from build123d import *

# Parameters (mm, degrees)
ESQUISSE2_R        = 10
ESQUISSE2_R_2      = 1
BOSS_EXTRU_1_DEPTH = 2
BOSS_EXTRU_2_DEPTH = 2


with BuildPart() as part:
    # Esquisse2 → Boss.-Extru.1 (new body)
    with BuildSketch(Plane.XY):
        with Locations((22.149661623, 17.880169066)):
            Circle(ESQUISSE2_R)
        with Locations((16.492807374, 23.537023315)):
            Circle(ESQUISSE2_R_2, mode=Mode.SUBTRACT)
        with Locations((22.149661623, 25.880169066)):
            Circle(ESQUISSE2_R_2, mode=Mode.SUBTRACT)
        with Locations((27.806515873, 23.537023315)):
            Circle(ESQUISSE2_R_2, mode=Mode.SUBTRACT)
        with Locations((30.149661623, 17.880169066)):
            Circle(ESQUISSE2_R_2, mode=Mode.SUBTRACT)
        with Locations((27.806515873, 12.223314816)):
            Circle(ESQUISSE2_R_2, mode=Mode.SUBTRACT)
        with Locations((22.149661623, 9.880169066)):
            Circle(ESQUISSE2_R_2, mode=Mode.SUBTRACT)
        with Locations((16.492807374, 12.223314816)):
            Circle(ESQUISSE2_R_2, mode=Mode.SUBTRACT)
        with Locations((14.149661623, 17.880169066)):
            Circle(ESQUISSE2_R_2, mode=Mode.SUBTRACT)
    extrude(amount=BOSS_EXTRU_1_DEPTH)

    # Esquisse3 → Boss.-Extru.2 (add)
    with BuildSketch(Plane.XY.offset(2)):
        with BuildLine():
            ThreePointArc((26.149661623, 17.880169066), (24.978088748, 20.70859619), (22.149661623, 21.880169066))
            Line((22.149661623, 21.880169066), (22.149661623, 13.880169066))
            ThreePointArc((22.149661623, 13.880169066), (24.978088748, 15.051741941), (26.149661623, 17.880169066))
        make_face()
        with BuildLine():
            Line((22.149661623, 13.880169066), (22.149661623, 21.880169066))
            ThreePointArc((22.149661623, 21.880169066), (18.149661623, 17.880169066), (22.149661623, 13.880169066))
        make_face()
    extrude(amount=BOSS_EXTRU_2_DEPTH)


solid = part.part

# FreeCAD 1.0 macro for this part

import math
import FreeCAD as App
import Part
import Sketcher

V = App.Vector
Q = App.Units.Quantity

doc = App.newDocument("Part")
params = doc.addObject("Spreadsheet::Sheet", "Params")
for row, (alias, value) in enumerate([
    ("sketch1_diameter", "20 mm"),
    ("sketch1_diameter2", "2 mm"),
    ("pad1_length", "2 mm"),
    ("sketch2_radius", "4 mm"),
    ("pad2_length", "2 mm"),
], start=1):
    params.set(f"A{row}", alias)
    params.set(f"B{row}", "=" + value)
    params.setAlias(f"B{row}", alias)

body = doc.addObject("PartDesign::Body", "Body")

# Sketch on XY plane
sketch1 = body.newObject("Sketcher::SketchObject", "Sketch")
sketch1.AttachmentSupport = (doc.getObject("XY_Plane"), [""])
sketch1.MapMode = "FlatFace"
sketch1.addGeometry([
    Part.Circle(V(22.1, 17.9, 0), V(0, 0, 1), 10),  # 0
    Part.Circle(V(16.5, 12.2, 0), V(0, 0, 1), 1),  # 1
    Part.Circle(V(22.1, 9.9, 0), V(0, 0, 1), 1),  # 2
    Part.Circle(V(27.8, 12.2, 0), V(0, 0, 1), 1),  # 3
    Part.Circle(V(14.1, 17.9, 0), V(0, 0, 1), 1),  # 4
    Part.Circle(V(16.5, 23.5, 0), V(0, 0, 1), 1),  # 5
    Part.Circle(V(30.1, 17.9, 0), V(0, 0, 1), 1),  # 6
    Part.Circle(V(22.1, 25.9, 0), V(0, 0, 1), 1),  # 7
    Part.Circle(V(27.8, 23.5, 0), V(0, 0, 1), 1),  # 8
], False)
sketch1.addConstraint([
    Sketcher.Constraint("Equal", 1, 2),
    Sketcher.Constraint("Equal", 2, 3),
    Sketcher.Constraint("Equal", 3, 4),
    Sketcher.Constraint("Equal", 4, 5),
    Sketcher.Constraint("Equal", 5, 6),
    Sketcher.Constraint("Equal", 6, 7),
    Sketcher.Constraint("Equal", 7, 8),
    Sketcher.Constraint("Horizontal", 1, 3, 3, 3),
    Sketcher.Constraint("Horizontal", 0, 3, 4, 3),
    Sketcher.Constraint("Horizontal", 4, 3, 6, 3),
    Sketcher.Constraint("Horizontal", 5, 3, 8, 3),
    Sketcher.Constraint("Vertical", 0, 3, 2, 3),
    Sketcher.Constraint("Vertical", 1, 3, 5, 3),
    Sketcher.Constraint("Vertical", 2, 3, 7, 3),
    Sketcher.Constraint("Vertical", 3, 3, 8, 3),
    Sketcher.Constraint("Diameter", 0, Q("20 mm")),
    Sketcher.Constraint("Diameter", 1, Q("2 mm")),
    Sketcher.Constraint("DistanceY", 2, 3, 0, 3, Q("8 mm")),
    Sketcher.Constraint("DistanceX", 4, 3, 0, 3, Q("8 mm")),
    Sketcher.Constraint("DistanceX", 0, 3, 6, 3, Q("8 mm")),
    Sketcher.Constraint("DistanceY", 0, 3, 7, 3, Q("8 mm")),
    Sketcher.Constraint("DistanceX", -1, 1, 0, 3, Q("22.149662 mm")),
    Sketcher.Constraint("DistanceY", -1, 1, 0, 3, Q("17.880169 mm")),
    Sketcher.Constraint("DistanceX", 1, 3, 3, 3, Q("11.313708 mm")),
    Sketcher.Constraint("DistanceY", 1, 3, 5, 3, Q("11.313708 mm")),
    Sketcher.Constraint("DistanceX", -1, 1, 1, 3, Q("16.492807 mm")),
    Sketcher.Constraint("DistanceY", -1, 1, 1, 3, Q("12.223315 mm")),
])
sketch1.setExpression("Constraints[15]", "Params.sketch1_diameter")
sketch1.setExpression("Constraints[16]", "Params.sketch1_diameter2")
pad1 = body.newObject("PartDesign::Pad", "Pad")
pad1.Profile = sketch1
pad1.setExpression("Length", "Params.pad1_length")

# Sketch on XY plane
sketch2 = body.newObject("Sketcher::SketchObject", "Sketch001")
sketch2.AttachmentSupport = (doc.getObject("XY_Plane"), [""])
sketch2.MapMode = "FlatFace"
sketch2.AttachmentOffset = App.Placement(V(0, 0, 2), App.Rotation())
sketch2.addGeometry([
    Part.ArcOfCircle(Part.Circle(V(22.1, 17.9, 0), V(0, 0, 1), 4), math.radians(0), math.radians(90)),
    Part.ArcOfCircle(Part.Circle(V(22.1, 17.9, 0), V(0, 0, 1), 4), math.radians(90), math.radians(270)),
    Part.ArcOfCircle(Part.Circle(V(22.1, 17.9, 0), V(0, 0, 1), 4), math.radians(-90), math.radians(0)),
], False)
sketch2.addConstraint([
    Sketcher.Constraint("Tangent", 0, 2, 1, 1),
    Sketcher.Constraint("Tangent", 1, 2, 2, 1),
    Sketcher.Constraint("Tangent", 2, 2, 0, 1),
    Sketcher.Constraint("Horizontal", 1, 3, 2, 2),
    Sketcher.Constraint("Vertical", 2, 3, 0, 2),
    Sketcher.Constraint("Vertical", 0, 2, 1, 2),
    Sketcher.Constraint("Radius", 0, Q("4 mm")),
    Sketcher.Constraint("DistanceX", -1, 1, 0, 3, Q("22.149662 mm")),
    Sketcher.Constraint("DistanceY", -1, 1, 0, 3, Q("17.880169 mm")),
])
sketch2.setExpression("Constraints[6]", "Params.sketch2_radius")
pad2 = body.newObject("PartDesign::Pad", "Pad001")
pad2.Profile = sketch2
pad2.setExpression("Length", "Params.pad2_length")

doc.recompute()
